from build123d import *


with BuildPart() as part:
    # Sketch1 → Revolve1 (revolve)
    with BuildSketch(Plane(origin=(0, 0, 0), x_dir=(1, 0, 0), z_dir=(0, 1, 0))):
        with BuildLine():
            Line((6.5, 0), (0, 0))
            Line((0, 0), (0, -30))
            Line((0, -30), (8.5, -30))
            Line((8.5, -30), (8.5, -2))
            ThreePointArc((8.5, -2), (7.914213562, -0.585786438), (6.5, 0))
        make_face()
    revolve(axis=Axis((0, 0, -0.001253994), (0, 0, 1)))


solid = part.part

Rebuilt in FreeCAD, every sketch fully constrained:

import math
import FreeCAD as App
import Part
import Sketcher
from FreeCAD import Vector
Q = App.Units.Quantity

doc = App.newDocument("Part")
params = doc.addObject("Spreadsheet::Sheet", "Params")
for row, (alias, value) in enumerate([
    ("sketch1_radius", "2 mm"),
    ("sketch1_height", "30 mm"),
    ("sketch1_width", "6.5 mm"),
    ("revolution_angle", "360 deg"),
], start=1):
    params.set(f"A{row}", alias)
    params.set(f"B{row}", "=" + value)
    params.setAlias(f"B{row}", alias)

body = doc.addObject("PartDesign::Body", "Body")

# Sketch on XZ plane
sketch1 = doc.addObject("Sketcher::SketchObject", "Sketch")
body.addObject(sketch1)
sketch1.AttachmentSupport = (doc.XZ_Plane, [""])
sketch1.MapMode = "FlatFace"
sketch1.addGeometry([
    Part.LineSegment(Vector(6.5, 0, 0), Vector(0, 0, 0)),  # 0
    Part.LineSegment(Vector(0, 0, 0), Vector(0, 30, 0)),  # 1
    Part.LineSegment(Vector(0, 30, 0), Vector(8.5, 30, 0)),  # 2
    Part.LineSegment(Vector(8.5, 30, 0), Vector(8.5, 2, 0)),  # 3
    Part.ArcOfCircle(Part.Circle(Vector(6.5, 2, 0), Vector(0, 0, 1), 2), math.radians(-90), math.radians(0)),  # 4
], False)
sketch1.addConstraint([
    Sketcher.Constraint("Coincident", 0, 2, 1, 1),
    Sketcher.Constraint("Coincident", 1, 2, 2, 1),
    Sketcher.Constraint("Coincident", 2, 2, 3, 1),
    Sketcher.Constraint("Tangent", 3, 2, 4, 2),
    Sketcher.Constraint("Tangent", 4, 1, 0, 1),
    Sketcher.Constraint("Horizontal", 0),
    Sketcher.Constraint("Vertical", 1),
    Sketcher.Constraint("Horizontal", 2),
    Sketcher.Constraint("Vertical", 3),
    Sketcher.Constraint("Coincident", 0, 2, -1, 1),
    Sketcher.Constraint("Radius", 4, Q("2 mm")),
    Sketcher.Constraint("DistanceY", 1, 1, 1, 2, Q("30 mm")),
    Sketcher.Constraint("DistanceX", 0, 2, 0, 1, Q("6.5 mm")),
])
sketch1.setExpression("Constraints[10]", "Params.sketch1_radius")
sketch1.setExpression("Constraints[11]", "Params.sketch1_height")
sketch1.setExpression("Constraints[12]", "Params.sketch1_width")
revolution = doc.addObject("PartDesign::Revolution", "Revolution")
body.addObject(revolution)
revolution.Profile = sketch1
revolution.ReferenceAxis = (sketch1, ["V_Axis"])
revolution.setExpression("Angle", "Params.revolution_angle")

doc.recompute()
